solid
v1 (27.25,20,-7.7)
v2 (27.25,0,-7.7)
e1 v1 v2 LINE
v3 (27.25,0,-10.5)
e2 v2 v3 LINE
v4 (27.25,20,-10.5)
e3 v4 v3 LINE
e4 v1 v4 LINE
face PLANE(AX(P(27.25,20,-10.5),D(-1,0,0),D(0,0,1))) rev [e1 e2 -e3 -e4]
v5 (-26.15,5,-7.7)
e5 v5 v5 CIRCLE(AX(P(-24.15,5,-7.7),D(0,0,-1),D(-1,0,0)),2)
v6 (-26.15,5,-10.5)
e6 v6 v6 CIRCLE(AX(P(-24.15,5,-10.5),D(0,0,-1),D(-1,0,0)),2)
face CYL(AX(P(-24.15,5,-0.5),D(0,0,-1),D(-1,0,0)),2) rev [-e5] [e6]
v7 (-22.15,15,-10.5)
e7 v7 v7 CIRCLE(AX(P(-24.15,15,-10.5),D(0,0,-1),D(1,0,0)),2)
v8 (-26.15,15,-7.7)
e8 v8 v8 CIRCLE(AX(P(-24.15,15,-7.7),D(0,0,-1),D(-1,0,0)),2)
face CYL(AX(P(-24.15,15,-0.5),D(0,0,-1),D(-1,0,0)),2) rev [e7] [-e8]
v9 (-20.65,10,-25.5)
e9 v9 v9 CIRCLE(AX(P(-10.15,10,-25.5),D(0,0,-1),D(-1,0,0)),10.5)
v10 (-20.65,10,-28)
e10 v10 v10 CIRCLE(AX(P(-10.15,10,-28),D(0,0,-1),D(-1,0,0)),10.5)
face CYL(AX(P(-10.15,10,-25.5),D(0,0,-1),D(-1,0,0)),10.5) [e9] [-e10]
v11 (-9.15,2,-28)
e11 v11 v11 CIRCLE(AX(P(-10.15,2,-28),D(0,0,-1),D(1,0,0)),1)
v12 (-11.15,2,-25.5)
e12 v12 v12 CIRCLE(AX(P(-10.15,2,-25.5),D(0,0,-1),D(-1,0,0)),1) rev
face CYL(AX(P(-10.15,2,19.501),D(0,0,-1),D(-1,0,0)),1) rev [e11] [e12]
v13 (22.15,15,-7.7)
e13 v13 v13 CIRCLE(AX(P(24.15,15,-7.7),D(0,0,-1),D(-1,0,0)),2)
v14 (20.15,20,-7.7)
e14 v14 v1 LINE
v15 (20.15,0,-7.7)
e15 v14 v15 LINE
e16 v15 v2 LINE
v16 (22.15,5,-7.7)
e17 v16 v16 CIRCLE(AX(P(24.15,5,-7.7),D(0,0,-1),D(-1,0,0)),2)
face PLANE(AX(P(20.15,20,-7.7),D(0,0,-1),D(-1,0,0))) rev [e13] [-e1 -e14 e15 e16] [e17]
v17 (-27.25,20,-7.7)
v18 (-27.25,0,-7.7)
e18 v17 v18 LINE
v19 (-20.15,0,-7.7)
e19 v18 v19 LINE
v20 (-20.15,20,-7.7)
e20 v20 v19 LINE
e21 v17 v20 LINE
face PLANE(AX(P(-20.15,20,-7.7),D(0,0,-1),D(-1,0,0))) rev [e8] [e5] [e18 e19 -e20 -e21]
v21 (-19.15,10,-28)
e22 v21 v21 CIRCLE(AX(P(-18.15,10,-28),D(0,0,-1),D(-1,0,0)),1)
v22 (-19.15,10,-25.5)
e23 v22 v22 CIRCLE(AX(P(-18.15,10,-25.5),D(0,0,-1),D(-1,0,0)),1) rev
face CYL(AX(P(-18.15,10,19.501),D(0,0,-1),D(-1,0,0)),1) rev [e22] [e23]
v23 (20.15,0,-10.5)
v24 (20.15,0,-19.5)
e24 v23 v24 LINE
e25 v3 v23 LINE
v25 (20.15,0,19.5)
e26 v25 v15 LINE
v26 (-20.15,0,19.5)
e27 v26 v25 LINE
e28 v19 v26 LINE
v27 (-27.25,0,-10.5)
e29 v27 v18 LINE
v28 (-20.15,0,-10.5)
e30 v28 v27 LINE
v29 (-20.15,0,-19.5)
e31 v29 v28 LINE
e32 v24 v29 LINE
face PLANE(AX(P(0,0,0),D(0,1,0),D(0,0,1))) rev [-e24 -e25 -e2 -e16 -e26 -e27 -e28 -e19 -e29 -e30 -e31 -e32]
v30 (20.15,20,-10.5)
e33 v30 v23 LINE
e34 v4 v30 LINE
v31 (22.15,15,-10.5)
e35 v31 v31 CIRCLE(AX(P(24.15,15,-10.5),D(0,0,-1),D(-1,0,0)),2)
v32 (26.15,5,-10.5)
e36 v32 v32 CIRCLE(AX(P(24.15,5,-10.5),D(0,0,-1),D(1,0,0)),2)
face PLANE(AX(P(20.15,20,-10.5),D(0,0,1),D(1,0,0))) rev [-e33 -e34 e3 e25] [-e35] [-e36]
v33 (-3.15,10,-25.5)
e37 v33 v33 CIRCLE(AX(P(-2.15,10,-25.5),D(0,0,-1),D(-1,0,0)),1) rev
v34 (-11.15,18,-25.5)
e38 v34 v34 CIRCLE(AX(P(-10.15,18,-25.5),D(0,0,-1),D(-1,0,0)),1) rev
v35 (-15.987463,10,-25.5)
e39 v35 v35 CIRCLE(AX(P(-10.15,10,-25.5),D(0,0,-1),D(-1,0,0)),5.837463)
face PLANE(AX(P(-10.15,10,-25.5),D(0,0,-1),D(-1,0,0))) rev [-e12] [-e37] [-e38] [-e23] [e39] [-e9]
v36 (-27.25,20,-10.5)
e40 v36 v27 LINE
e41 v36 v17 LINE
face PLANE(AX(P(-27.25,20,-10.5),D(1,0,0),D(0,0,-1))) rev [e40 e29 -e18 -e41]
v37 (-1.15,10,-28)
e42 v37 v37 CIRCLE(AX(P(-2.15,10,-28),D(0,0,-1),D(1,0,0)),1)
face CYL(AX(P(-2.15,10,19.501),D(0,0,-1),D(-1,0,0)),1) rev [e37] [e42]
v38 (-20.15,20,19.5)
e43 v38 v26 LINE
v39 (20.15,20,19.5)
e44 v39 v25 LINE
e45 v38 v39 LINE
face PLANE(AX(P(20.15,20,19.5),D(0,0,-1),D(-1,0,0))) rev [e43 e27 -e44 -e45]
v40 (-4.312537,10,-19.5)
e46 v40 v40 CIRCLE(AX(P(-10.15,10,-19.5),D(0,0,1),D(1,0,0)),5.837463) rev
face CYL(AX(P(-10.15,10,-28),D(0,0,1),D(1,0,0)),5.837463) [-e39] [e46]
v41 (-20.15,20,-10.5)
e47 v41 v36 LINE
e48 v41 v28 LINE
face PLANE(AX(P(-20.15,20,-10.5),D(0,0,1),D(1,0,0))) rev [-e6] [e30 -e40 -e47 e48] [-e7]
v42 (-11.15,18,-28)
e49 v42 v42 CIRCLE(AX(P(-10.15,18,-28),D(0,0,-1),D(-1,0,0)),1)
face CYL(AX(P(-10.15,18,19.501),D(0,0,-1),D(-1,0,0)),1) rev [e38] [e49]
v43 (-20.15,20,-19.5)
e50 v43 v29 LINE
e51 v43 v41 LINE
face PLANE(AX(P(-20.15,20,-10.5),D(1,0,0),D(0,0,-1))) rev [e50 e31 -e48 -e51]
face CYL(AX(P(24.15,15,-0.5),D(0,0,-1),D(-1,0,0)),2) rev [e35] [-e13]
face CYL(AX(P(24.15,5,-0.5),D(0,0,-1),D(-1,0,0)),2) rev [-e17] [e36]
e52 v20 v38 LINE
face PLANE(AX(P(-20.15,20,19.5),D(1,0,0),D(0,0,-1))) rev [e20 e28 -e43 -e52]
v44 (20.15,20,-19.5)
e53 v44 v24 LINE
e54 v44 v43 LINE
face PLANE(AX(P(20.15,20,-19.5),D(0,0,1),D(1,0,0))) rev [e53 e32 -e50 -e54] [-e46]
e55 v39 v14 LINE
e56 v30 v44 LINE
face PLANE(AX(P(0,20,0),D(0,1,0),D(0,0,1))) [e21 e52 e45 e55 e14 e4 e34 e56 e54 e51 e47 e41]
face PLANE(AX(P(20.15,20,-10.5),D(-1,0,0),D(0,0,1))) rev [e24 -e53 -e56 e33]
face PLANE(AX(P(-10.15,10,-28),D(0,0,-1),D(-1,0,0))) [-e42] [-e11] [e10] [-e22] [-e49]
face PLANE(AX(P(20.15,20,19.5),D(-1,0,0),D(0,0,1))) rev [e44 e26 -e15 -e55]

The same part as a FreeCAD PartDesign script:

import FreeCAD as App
import Part
import Sketcher

V = App.Vector
Q = App.Units.Quantity

doc = App.newDocument("Part")
body = doc.addObject("PartDesign::Body", "Body")

sketch1 = doc.addObject("Sketcher::SketchObject", "Sketch")
body.addObject(sketch1)
sketch1.AttachmentSupport = (doc.XZ_Plane, [""])
sketch1.MapMode = "FlatFace"
sketch1.addGeometry([
    Part.LineSegment(V(20.1, -19.5, 0), V(-20.1, -19.5, 0)),
    Part.LineSegment(V(-20.1, -19.5, 0), V(-20.1, -10.5, 0)),
    Part.LineSegment(V(-20.1, -10.5, 0), V(-27.2, -10.5, 0)),
    Part.LineSegment(V(-27.2, -10.5, 0), V(-27.2, -7.7, 0)),
    Part.LineSegment(V(-27.2, -7.7, 0), V(-20.1, -7.7, 0)),
    Part.LineSegment(V(-20.1, -7.7, 0), V(-20.1, 19.5, 0)),
    Part.LineSegment(V(-20.1, 19.5, 0), V(20.1, 19.5, 0)),
    Part.LineSegment(V(20.1, 19.5, 0), V(20.1, -7.7, 0)),
    Part.LineSegment(V(20.1, -7.7, 0), V(27.2, -7.7, 0)),
    Part.LineSegment(V(27.2, -7.7, 0), V(27.2, -10.5, 0)),
    Part.LineSegment(V(27.2, -10.5, 0), V(20.1, -10.5, 0)),
    Part.LineSegment(V(20.1, -10.5, 0), V(20.1, -19.5, 0)),
], False)
sketch1.addConstraint([
    Sketcher.Constraint("Coincident", 0, 2, 1, 1),
    Sketcher.Constraint("Coincident", 1, 2, 2, 1),
    Sketcher.Constraint("Coincident", 2, 2, 3, 1),
    Sketcher.Constraint("Coincident", 3, 2, 4, 1),
    Sketcher.Constraint("Coincident", 4, 2, 5, 1),
    Sketcher.Constraint("Coincident", 5, 2, 6, 1),
    Sketcher.Constraint("Coincident", 6, 2, 7, 1),
    Sketcher.Constraint("Coincident", 7, 2, 8, 1),
    Sketcher.Constraint("Coincident", 8, 2, 9, 1),
    Sketcher.Constraint("Coincident", 9, 2, 10, 1),
    Sketcher.Constraint("Coincident", 10, 2, 11, 1),
    Sketcher.Constraint("Coincident", 11, 2, 0, 1),
    Sketcher.Constraint("Horizontal", 0),
    Sketcher.Constraint("Vertical", 1),
    Sketcher.Constraint("Horizontal", 2),
    Sketcher.Constraint("Vertical", 3),
    Sketcher.Constraint("Horizontal", 4),
    Sketcher.Constraint("Vertical", 5),
    Sketcher.Constraint("Horizontal", 6),
    Sketcher.Constraint("Vertical", 7),
    Sketcher.Constraint("Horizontal", 8),
    Sketcher.Constraint("Vertical", 9),
    Sketcher.Constraint("Horizontal", 10),
    Sketcher.Constraint("Vertical", 11),
    Sketcher.Constraint("Symmetric", 0, 2, 6, 2, -1, 1),
    Sketcher.Constraint("Symmetric", 4, 2, 7, 2, -2),
    Sketcher.Constraint("Symmetric", 2, 2, 9, 2, -2),
    Sketcher.Constraint("Vertical", 7, 2, 10, 2),
    Sketcher.Constraint("DistanceY", 1, 1, 1, 2, Q("9 mm")),
    Sketcher.Constraint("DistanceX", 0, 2, 0, 1, Q("40.3 mm")),
    Sketcher.Constraint("DistanceX", 2, 2, 2, 1, Q("7.1 mm")),
    Sketcher.Constraint("DistanceY", 3, 1, 3, 2, Q("2.8 mm")),
    Sketcher.Constraint("DistanceY", 5, 1, 5, 2, Q("27.2 mm")),
])
pad1 = doc.addObject("PartDesign::Pad", "Pad")
body.addObject(pad1)
pad1.Profile = sketch1
pad1.Length = 20
pad1.Reversed = True

sketch2 = doc.addObject("Sketcher::SketchObject", "Sketch001")
body.addObject(sketch2)
sketch2.AttachmentSupport = (doc.XY_Plane, [""])
sketch2.MapMode = "FlatFace"
sketch2.AttachmentOffset = App.Placement(V(0, 0, -19.5), App.Rotation())
sketch2.addGeometry(Part.Circle(V(-10, 10, 0), V(0, 0, 1), 6), False)
sketch2.addConstraint([
    Sketcher.Constraint("DistanceY", -1, 1, 0, 3, Q("10 mm")),
    Sketcher.Constraint("DistanceX", 0, 3, -1, 1, Q("10.15 mm")),
    Sketcher.Constraint("Diameter", 0, Q("11.674926 mm")),
])
pad2 = doc.addObject("PartDesign::Pad", "Pad001")
body.addObject(pad2)
pad2.Profile = sketch2
pad2.Length = 8.5
pad2.Reversed = True

sketch3 = doc.addObject("Sketcher::SketchObject", "Sketch002")
body.addObject(sketch3)
sketch3.AttachmentSupport = (doc.XY_Plane, [""])
sketch3.MapMode = "FlatFace"
sketch3.AttachmentOffset = App.Placement(V(0, 0, -10.5), App.Rotation())
sketch3.addGeometry([
    Part.Circle(V(24.1, 15, 0), V(0, 0, 1), 2),
    Part.Circle(V(24.1, 5, 0), V(0, 0, 1), 2),
    Part.Circle(V(-24.1, 5, 0), V(0, 0, 1), 2),
    Part.Circle(V(-24.1, 15, 0), V(0, 0, 1), 2),
], False)
sketch3.addConstraint([
    Sketcher.Constraint("Equal", 0, 1),
    Sketcher.Constraint("Equal", 1, 2),
    Sketcher.Constraint("Equal", 2, 3),
    Sketcher.Constraint("Symmetric", 1, 3, 2, 3, -2),
    Sketcher.Constraint("Symmetric", 0, 3, 3, 3, -2),
    Sketcher.Constraint("Vertical", 0, 3, 1, 3),
    Sketcher.Constraint("Diameter", 0, Q("4 mm")),
    Sketcher.Constraint("DistanceY", -1, 1, 0, 3, Q("15 mm")),
    Sketcher.Constraint("DistanceY", -1, 1, 1, 3, Q("5 mm")),
    Sketcher.Constraint("DistanceX", 2, 3, 1, 3, Q("48.3 mm")),
])
pocket1 = doc.addObject("PartDesign::Pocket", "Pocket")
body.addObject(pocket1)
pocket1.Profile = sketch3
pocket1.Length = 10
pocket1.Reversed = True

sketch4 = doc.addObject("Sketcher::SketchObject", "Sketch003")
body.addObject(sketch4)
sketch4.AttachmentSupport = (doc.XY_Plane, [""])
sketch4.MapMode = "FlatFace"
sketch4.AttachmentOffset = App.Placement(V(0, 0, -28), App.Rotation())
sketch4.addGeometry(Part.Circle(V(-10, 10, 0), V(0, 0, 1), 10), False)
sketch4.addConstraint([
    Sketcher.Constraint("Diameter", 0, Q("21 mm")),
    Sketcher.Constraint("DistanceY", -1, 1, 0, 3, Q("10 mm")),
    Sketcher.Constraint("DistanceX", 0, 3, -1, 1, Q("10.15 mm")),
])
pad3 = doc.addObject("PartDesign::Pad", "Pad002")
body.addObject(pad3)
pad3.Profile = sketch4
pad3.Length = 2.5

sketch5 = doc.addObject("Sketcher::SketchObject", "Sketch004")
body.addObject(sketch5)
sketch5.AttachmentSupport = (doc.XY_Plane, [""])
sketch5.MapMode = "FlatFace"
sketch5.AttachmentOffset = App.Placement(V(0, 0, -28), App.Rotation())
sketch5.addGeometry(Part.Circle(V(-10.2, 18, 0), V(0, 0, 1), 1), False)
sketch5.addConstraint([
    Sketcher.Constraint("Diameter", 0, Q("2 mm")),
    Sketcher.Constraint("DistanceY", -1, 1, 0, 3, Q("18 mm")),
    Sketcher.Constraint("DistanceX", 0, 3, -1, 1, Q("10.15 mm")),
])
pocket2 = doc.addObject("PartDesign::Pocket", "Pocket001")
body.addObject(pocket2)
pocket2.Profile = sketch5
pocket2.Type = "UpToFirst"
pocket2.Reversed = True

sketch6 = doc.addObject("Sketcher::SketchObject", "Sketch005")
body.addObject(sketch6)
sketch6.AttachmentSupport = (doc.XY_Plane, [""])
sketch6.MapMode = "FlatFace"
sketch6.AttachmentOffset = App.Placement(V(0, 0, -28), App.Rotation())
sketch6.addGeometry(Part.Circle(V(-18.1, 10, 0), V(0, 0, 1), 1), False)
sketch6.addConstraint([
    Sketcher.Constraint("Diameter", 0, Q("2 mm")),
    Sketcher.Constraint("DistanceY", -1, 1, 0, 3, Q("10 mm")),
    Sketcher.Constraint("DistanceX", 0, 3, -1, 1, Q("18.15 mm")),
])
pocket3 = doc.addObject("PartDesign::Pocket", "Pocket002")
body.addObject(pocket3)
pocket3.Profile = sketch6
pocket3.Type = "UpToFirst"
pocket3.Reversed = True

sketch7 = doc.addObject("Sketcher::SketchObject", "Sketch006")
body.addObject(sketch7)
sketch7.AttachmentSupport = (doc.XY_Plane, [""])
sketch7.MapMode = "FlatFace"
sketch7.AttachmentOffset = App.Placement(V(0, 0, -28), App.Rotation())
sketch7.addGeometry(Part.Circle(V(-2.1, 10, 0), V(0, 0, 1), 1), False)
sketch7.addConstraint([
    Sketcher.Constraint("Diameter", 0, Q("2 mm")),
    Sketcher.Constraint("DistanceY", -1, 1, 0, 3, Q("10 mm")),
    Sketcher.Constraint("DistanceX", 0, 3, -1, 1, Q("2.15 mm")),
])
pocket4 = doc.addObject("PartDesign::Pocket", "Pocket003")
body.addObject(pocket4)
pocket4.Profile = sketch7
pocket4.Type = "UpToFirst"
pocket4.Reversed = True

sketch8 = doc.addObject("Sketcher::SketchObject", "Sketch007")
body.addObject(sketch8)
sketch8.AttachmentSupport = (doc.XY_Plane, [""])
sketch8.MapMode = "FlatFace"
sketch8.AttachmentOffset = App.Placement(V(0, 0, -28), App.Rotation())
sketch8.addGeometry(Part.Circle(V(-10.2, 2, 0), V(0, 0, 1), 1), False)
sketch8.addConstraint([
    Sketcher.Constraint("Diameter", 0, Q("2 mm")),
    Sketcher.Constraint("DistanceY", -1, 1, 0, 3, Q("2 mm")),
    Sketcher.Constraint("DistanceX", 0, 3, -1, 1, Q("10.15 mm")),
])
pocket5 = doc.addObject("PartDesign::Pocket", "Pocket004")
body.addObject(pocket5)
pocket5.Profile = sketch8
pocket5.Type = "UpToFirst"
pocket5.Reversed = True

doc.recompute()
